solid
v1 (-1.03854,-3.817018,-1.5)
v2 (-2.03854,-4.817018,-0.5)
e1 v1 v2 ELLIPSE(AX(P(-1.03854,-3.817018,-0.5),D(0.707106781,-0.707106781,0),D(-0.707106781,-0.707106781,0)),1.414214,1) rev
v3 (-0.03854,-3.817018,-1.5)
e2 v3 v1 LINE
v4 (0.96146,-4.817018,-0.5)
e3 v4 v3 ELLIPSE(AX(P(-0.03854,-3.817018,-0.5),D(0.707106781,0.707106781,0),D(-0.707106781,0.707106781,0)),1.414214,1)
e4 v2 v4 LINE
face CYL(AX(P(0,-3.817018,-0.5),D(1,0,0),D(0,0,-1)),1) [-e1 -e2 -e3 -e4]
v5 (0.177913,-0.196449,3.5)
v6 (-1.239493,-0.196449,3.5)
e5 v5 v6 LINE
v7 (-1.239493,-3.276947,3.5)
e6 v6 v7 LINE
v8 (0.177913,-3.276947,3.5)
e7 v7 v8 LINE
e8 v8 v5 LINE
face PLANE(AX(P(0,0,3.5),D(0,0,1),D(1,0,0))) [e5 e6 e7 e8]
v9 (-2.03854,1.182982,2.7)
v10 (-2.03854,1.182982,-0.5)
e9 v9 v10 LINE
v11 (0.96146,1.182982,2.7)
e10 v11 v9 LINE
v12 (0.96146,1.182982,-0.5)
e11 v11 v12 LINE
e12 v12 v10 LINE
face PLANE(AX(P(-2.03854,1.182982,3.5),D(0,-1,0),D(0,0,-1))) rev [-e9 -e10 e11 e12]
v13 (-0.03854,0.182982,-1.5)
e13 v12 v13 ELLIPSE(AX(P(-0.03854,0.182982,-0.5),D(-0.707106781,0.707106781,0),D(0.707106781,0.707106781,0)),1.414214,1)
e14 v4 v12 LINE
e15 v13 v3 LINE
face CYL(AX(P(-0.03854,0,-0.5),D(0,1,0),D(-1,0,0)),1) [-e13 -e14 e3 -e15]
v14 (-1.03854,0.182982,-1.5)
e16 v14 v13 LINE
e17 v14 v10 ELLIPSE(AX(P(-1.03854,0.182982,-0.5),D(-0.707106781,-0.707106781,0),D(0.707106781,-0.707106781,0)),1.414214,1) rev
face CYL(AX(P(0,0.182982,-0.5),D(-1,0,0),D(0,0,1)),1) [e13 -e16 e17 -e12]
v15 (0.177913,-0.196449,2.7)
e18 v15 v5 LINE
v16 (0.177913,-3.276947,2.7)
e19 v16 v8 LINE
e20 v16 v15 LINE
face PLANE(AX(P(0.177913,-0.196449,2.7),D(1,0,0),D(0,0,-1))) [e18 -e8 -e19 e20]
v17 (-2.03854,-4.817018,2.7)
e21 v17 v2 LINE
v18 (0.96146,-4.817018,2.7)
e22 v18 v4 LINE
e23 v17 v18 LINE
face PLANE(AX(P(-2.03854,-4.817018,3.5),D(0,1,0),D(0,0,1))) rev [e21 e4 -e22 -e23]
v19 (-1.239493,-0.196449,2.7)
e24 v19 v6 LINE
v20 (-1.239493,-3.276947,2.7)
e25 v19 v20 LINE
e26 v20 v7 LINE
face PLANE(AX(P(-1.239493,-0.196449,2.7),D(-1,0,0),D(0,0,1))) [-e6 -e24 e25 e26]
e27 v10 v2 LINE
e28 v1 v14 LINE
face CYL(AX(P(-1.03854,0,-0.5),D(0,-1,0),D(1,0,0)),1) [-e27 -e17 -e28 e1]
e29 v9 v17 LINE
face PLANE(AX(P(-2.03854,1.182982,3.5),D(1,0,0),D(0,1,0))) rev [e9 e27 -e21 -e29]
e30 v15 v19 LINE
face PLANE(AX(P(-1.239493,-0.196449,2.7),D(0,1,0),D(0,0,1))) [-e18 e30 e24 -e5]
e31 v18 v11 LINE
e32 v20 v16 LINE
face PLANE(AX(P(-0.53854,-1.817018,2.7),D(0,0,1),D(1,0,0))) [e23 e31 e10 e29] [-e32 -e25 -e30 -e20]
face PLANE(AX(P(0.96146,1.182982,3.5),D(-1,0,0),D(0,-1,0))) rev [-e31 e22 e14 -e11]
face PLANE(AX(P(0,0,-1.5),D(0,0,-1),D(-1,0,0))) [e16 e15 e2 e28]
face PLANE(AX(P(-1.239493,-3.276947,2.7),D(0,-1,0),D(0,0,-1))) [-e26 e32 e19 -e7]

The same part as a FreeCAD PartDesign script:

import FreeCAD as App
import Part
import Sketcher


def edges_at(feature, points):
    """Names of the edges that pass closest to the given points."""
    edges = feature.Shape.Edges
    near = lambda p: min(range(len(edges)), key=lambda i: edges[i].distToShape(Part.Vertex(*p))[0])
    return sorted({f"Edge{near(p) + 1}" for p in points})

doc = App.newDocument("Part")
body = doc.addObject("PartDesign::Body", "Body")

sketch1 = body.newObject("Sketcher::SketchObject", "Sketch")
sketch1.AttachmentSupport = (doc.getObject("XY_Plane"), [""])
sketch1.MapMode = "FlatFace"
sketch1.addGeometry(Part.LineSegment(App.Vector(-2, 1.2, 0), App.Vector(-2, -4.8, 0)), False)
sketch1.addGeometry(Part.LineSegment(App.Vector(-2, -4.8, 0), App.Vector(1, -4.8, 0)), False)
sketch1.addGeometry(Part.LineSegment(App.Vector(1, -4.8, 0), App.Vector(1, 1.2, 0)), False)
sketch1.addGeometry(Part.LineSegment(App.Vector(1, 1.2, 0), App.Vector(-2, 1.2, 0)), False)
sketch1.addConstraint(Sketcher.Constraint("Coincident", 0, 2, 1, 1))
sketch1.addConstraint(Sketcher.Constraint("Coincident", 1, 2, 2, 1))
sketch1.addConstraint(Sketcher.Constraint("Coincident", 2, 2, 3, 1))
sketch1.addConstraint(Sketcher.Constraint("Coincident", 3, 2, 0, 1))
sketch1.addConstraint(Sketcher.Constraint("Vertical", 0))
sketch1.addConstraint(Sketcher.Constraint("Horizontal", 1))
sketch1.addConstraint(Sketcher.Constraint("Vertical", 2))
sketch1.addConstraint(Sketcher.Constraint("Horizontal", 3))
sketch1.addConstraint(Sketcher.Constraint("DistanceX", 1, 1, 1, 2, 3.0))
sketch1.addConstraint(Sketcher.Constraint("DistanceY", 0, 2, 0, 1, 6.0))
sketch1.addConstraint(Sketcher.Constraint("DistanceX", 0, 2, -1, 1, 2.03854))
sketch1.addConstraint(Sketcher.Constraint("DistanceY", 0, 2, -1, 1, 4.817018))
pad1 = body.newObject("PartDesign::Pad", "Pad")
pad1.Profile = sketch1
pad1.Length = 3.5

sketch2 = body.newObject("Sketcher::SketchObject", "Sketch001")
sketch2.AttachmentSupport = (doc.getObject("XY_Plane"), [""])
sketch2.MapMode = "FlatFace"
sketch2.AttachmentOffset = App.Placement(App.Vector(0, 0, 3.5), App.Rotation())
sketch2.addGeometry(Part.LineSegment(App.Vector(-3.8, 2.9, 0), App.Vector(-3.8, -6.6, 0)), False)
sketch2.addGeometry(Part.LineSegment(App.Vector(-3.8, -6.6, 0), App.Vector(2.7, -6.6, 0)), False)
sketch2.addGeometry(Part.LineSegment(App.Vector(2.7, -6.6, 0), App.Vector(2.7, 2.9, 0)), False)
sketch2.addGeometry(Part.LineSegment(App.Vector(2.7, 2.9, 0), App.Vector(-3.8, 2.9, 0)), False)
sketch2.addGeometry(Part.LineSegment(App.Vector(0.2, -3.3, 0), App.Vector(-1.2, -3.3, 0)), False)
sketch2.addGeometry(Part.LineSegment(App.Vector(-1.2, -3.3, 0), App.Vector(-1.2, -0.2, 0)), False)
sketch2.addGeometry(Part.LineSegment(App.Vector(-1.2, -0.2, 0), App.Vector(0.2, -0.2, 0)), False)
sketch2.addGeometry(Part.LineSegment(App.Vector(0.2, -0.2, 0), App.Vector(0.2, -3.3, 0)), False)
sketch2.addConstraint(Sketcher.Constraint("Coincident", 0, 2, 1, 1))
sketch2.addConstraint(Sketcher.Constraint("Coincident", 1, 2, 2, 1))
sketch2.addConstraint(Sketcher.Constraint("Coincident", 2, 2, 3, 1))
sketch2.addConstraint(Sketcher.Constraint("Coincident", 3, 2, 0, 1))
sketch2.addConstraint(Sketcher.Constraint("Coincident", 4, 2, 5, 1))
sketch2.addConstraint(Sketcher.Constraint("Coincident", 5, 2, 6, 1))
sketch2.addConstraint(Sketcher.Constraint("Coincident", 6, 2, 7, 1))
sketch2.addConstraint(Sketcher.Constraint("Coincident", 7, 2, 4, 1))
sketch2.addConstraint(Sketcher.Constraint("Vertical", 0))
sketch2.addConstraint(Sketcher.Constraint("Horizontal", 1))
sketch2.addConstraint(Sketcher.Constraint("Vertical", 2))
sketch2.addConstraint(Sketcher.Constraint("Horizontal", 3))
sketch2.addConstraint(Sketcher.Constraint("Horizontal", 4))
sketch2.addConstraint(Sketcher.Constraint("Vertical", 5))
sketch2.addConstraint(Sketcher.Constraint("Horizontal", 6))
sketch2.addConstraint(Sketcher.Constraint("Vertical", 7))
sketch2.addConstraint(Sketcher.Constraint("DistanceX", 1, 1, 1, 2, 6.514))
sketch2.addConstraint(Sketcher.Constraint("DistanceY", 0, 2, 0, 1, 9.514))
sketch2.addConstraint(Sketcher.Constraint("DistanceY", -1, 1, 2, 2, 2.94))
sketch2.addConstraint(Sketcher.Constraint("DistanceX", 0, 2, -1, 1, 3.796))
sketch2.addConstraint(Sketcher.Constraint("DistanceX", 4, 2, 4, 1, 1.417407))
sketch2.addConstraint(Sketcher.Constraint("DistanceY", 5, 1, 5, 2, 3.080498))
sketch2.addConstraint(Sketcher.Constraint("DistanceY", 5, 2, -1, 1, 0.196449))
sketch2.addConstraint(Sketcher.Constraint("DistanceX", 4, 2, -1, 1, 1.239493))
pocket1 = body.newObject("PartDesign::Pocket", "Pocket")
pocket1.Profile = sketch2
pocket1.Length = 0.8

sketch3 = body.newObject("Sketcher::SketchObject", "Sketch002")
sketch3.AttachmentSupport = (doc.getObject("XY_Plane"), [""])
sketch3.MapMode = "FlatFace"
sketch3.addGeometry(Part.LineSegment(App.Vector(1, 1.2, 0), App.Vector(1, -4.8, 0)), False)
sketch3.addGeometry(Part.LineSegment(App.Vector(1, -4.8, 0), App.Vector(-2, -4.8, 0)), False)
sketch3.addGeometry(Part.LineSegment(App.Vector(-2, -4.8, 0), App.Vector(-2, 1.2, 0)), False)
sketch3.addGeometry(Part.LineSegment(App.Vector(-2, 1.2, 0), App.Vector(1, 1.2, 0)), False)
sketch3.addConstraint(Sketcher.Constraint("Coincident", 0, 2, 1, 1))
sketch3.addConstraint(Sketcher.Constraint("Coincident", 1, 2, 2, 1))
sketch3.addConstraint(Sketcher.Constraint("Coincident", 2, 2, 3, 1))
sketch3.addConstraint(Sketcher.Constraint("Coincident", 3, 2, 0, 1))
sketch3.addConstraint(Sketcher.Constraint("Vertical", 0))
sketch3.addConstraint(Sketcher.Constraint("Horizontal", 1))
sketch3.addConstraint(Sketcher.Constraint("Vertical", 2))
sketch3.addConstraint(Sketcher.Constraint("Horizontal", 3))
sketch3.addConstraint(Sketcher.Constraint("DistanceX", 1, 2, 1, 1, 3.0))
sketch3.addConstraint(Sketcher.Constraint("DistanceY", 0, 2, 0, 1, 6.0))
sketch3.addConstraint(Sketcher.Constraint("DistanceX", -1, 1, 0, 2, 0.96146))
sketch3.addConstraint(Sketcher.Constraint("DistanceY", 0, 2, -1, 1, 4.817018))
pad2 = body.newObject("PartDesign::Pad", "Pad001")
pad2.Profile = sketch3
pad2.Length = 1.5
pad2.Reversed = True
doc.recompute()

fillet = body.newObject("PartDesign::Fillet", "Fillet")
fillet.Base = (pad2, edges_at(pad2, [
    (0.961, -1.817, -1.5),
    (-0.539, -4.817, -1.5),
    (-2.039, -1.817, -1.5),
    (-0.539, 1.183, -1.5),
]))
fillet.Radius = 1

doc.recompute()
